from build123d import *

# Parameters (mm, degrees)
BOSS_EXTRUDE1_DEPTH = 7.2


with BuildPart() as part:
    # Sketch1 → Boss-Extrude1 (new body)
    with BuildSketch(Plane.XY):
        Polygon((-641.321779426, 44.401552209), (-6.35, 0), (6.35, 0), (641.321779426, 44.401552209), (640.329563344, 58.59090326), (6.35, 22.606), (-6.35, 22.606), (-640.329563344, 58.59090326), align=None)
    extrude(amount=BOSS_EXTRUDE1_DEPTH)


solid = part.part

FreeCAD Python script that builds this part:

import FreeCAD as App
import Part
import Sketcher
Q = App.Units.Quantity

doc = App.newDocument("Part")
params = doc.addObject("Spreadsheet::Sheet", "Params")
for row, (alias, value) in enumerate([
    ("sketch1_length", "25 in"),
    ("sketch1_width", "0.5 in"),
    ("sketch1_length2", "0.56 in"),
    ("pad1_length", "7.2 mm"),
], start=1):
    params.set(f"A{row}", alias)
    params.set(f"B{row}", "=" + value)
    params.setAlias(f"B{row}", alias)

body = doc.addObject("PartDesign::Body", "Body")

# Sketch on XY plane
sketch1 = body.newObject("Sketcher::SketchObject", "Sketch")
sketch1.AttachmentSupport = (doc.getObject("XY_Plane"), [""])
sketch1.MapMode = "FlatFace"
sketch1.addGeometry([
    Part.LineSegment(App.Vector(-641, 44, 0), App.Vector(-6, 0, 0)),  # 0
    Part.LineSegment(App.Vector(-6, 0, 0), App.Vector(6, 0, 0)),  # 1
    Part.LineSegment(App.Vector(6, 0, 0), App.Vector(641, 44, 0)),  # 2
    Part.LineSegment(App.Vector(641, 44, 0), App.Vector(640, 59, 0)),  # 3
    Part.LineSegment(App.Vector(640, 59, 0), App.Vector(6, 23, 0)),  # 4
    Part.LineSegment(App.Vector(6, 23, 0), App.Vector(-6, 23, 0)),  # 5
    Part.LineSegment(App.Vector(-6, 23, 0), App.Vector(-640, 59, 0)),  # 6
    Part.LineSegment(App.Vector(-640, 59, 0), App.Vector(-641, 44, 0)),  # 7
], False)
sketch1.addConstraint([
    Sketcher.Constraint("Coincident", 0, 2, 1, 1),
    Sketcher.Constraint("Coincident", 1, 2, 2, 1),
    Sketcher.Constraint("Coincident", 2, 2, 3, 1),
    Sketcher.Constraint("Coincident", 3, 2, 4, 1),
    Sketcher.Constraint("Coincident", 4, 2, 5, 1),
    Sketcher.Constraint("Coincident", 5, 2, 6, 1),
    Sketcher.Constraint("Coincident", 6, 2, 7, 1),
    Sketcher.Constraint("Coincident", 7, 2, 0, 1),
    Sketcher.Constraint("Horizontal", 1),
    Sketcher.Constraint("Horizontal", 5),
    Sketcher.Constraint("Symmetric", 0, 2, 1, 2, -1, 1),
    Sketcher.Constraint("Symmetric", 3, 2, 6, 2, -2),
    Sketcher.Constraint("Symmetric", 2, 2, 7, 2, -2),
    Sketcher.Constraint("Perpendicular", 2, 3),
    Sketcher.Constraint("Vertical", 1, 2, 4, 2),
    Sketcher.Constraint("Vertical", 0, 2, 5, 2),
    Sketcher.Constraint("Distance", 4, Q("25 in")),
    Sketcher.Constraint("DistanceX", 1, 1, 1, 2, Q("0.5 in")),
    Sketcher.Constraint("Angle", 0, Q("-4 deg")),
    Sketcher.Constraint("Distance", 3, Q("0.56 in")),
    Sketcher.Constraint("DistanceY", -1, 1, 4, 2, Q("0.89 in")),
])
sketch1.setExpression("Constraints[16]", "Params.sketch1_length")
sketch1.setExpression("Constraints[17]", "Params.sketch1_width")
sketch1.setExpression("Constraints[19]", "Params.sketch1_length2")
pad1 = body.newObject("PartDesign::Pad", "Pad")
pad1.Profile = sketch1
pad1.setExpression("Length", "Params.pad1_length")

doc.recompute()
